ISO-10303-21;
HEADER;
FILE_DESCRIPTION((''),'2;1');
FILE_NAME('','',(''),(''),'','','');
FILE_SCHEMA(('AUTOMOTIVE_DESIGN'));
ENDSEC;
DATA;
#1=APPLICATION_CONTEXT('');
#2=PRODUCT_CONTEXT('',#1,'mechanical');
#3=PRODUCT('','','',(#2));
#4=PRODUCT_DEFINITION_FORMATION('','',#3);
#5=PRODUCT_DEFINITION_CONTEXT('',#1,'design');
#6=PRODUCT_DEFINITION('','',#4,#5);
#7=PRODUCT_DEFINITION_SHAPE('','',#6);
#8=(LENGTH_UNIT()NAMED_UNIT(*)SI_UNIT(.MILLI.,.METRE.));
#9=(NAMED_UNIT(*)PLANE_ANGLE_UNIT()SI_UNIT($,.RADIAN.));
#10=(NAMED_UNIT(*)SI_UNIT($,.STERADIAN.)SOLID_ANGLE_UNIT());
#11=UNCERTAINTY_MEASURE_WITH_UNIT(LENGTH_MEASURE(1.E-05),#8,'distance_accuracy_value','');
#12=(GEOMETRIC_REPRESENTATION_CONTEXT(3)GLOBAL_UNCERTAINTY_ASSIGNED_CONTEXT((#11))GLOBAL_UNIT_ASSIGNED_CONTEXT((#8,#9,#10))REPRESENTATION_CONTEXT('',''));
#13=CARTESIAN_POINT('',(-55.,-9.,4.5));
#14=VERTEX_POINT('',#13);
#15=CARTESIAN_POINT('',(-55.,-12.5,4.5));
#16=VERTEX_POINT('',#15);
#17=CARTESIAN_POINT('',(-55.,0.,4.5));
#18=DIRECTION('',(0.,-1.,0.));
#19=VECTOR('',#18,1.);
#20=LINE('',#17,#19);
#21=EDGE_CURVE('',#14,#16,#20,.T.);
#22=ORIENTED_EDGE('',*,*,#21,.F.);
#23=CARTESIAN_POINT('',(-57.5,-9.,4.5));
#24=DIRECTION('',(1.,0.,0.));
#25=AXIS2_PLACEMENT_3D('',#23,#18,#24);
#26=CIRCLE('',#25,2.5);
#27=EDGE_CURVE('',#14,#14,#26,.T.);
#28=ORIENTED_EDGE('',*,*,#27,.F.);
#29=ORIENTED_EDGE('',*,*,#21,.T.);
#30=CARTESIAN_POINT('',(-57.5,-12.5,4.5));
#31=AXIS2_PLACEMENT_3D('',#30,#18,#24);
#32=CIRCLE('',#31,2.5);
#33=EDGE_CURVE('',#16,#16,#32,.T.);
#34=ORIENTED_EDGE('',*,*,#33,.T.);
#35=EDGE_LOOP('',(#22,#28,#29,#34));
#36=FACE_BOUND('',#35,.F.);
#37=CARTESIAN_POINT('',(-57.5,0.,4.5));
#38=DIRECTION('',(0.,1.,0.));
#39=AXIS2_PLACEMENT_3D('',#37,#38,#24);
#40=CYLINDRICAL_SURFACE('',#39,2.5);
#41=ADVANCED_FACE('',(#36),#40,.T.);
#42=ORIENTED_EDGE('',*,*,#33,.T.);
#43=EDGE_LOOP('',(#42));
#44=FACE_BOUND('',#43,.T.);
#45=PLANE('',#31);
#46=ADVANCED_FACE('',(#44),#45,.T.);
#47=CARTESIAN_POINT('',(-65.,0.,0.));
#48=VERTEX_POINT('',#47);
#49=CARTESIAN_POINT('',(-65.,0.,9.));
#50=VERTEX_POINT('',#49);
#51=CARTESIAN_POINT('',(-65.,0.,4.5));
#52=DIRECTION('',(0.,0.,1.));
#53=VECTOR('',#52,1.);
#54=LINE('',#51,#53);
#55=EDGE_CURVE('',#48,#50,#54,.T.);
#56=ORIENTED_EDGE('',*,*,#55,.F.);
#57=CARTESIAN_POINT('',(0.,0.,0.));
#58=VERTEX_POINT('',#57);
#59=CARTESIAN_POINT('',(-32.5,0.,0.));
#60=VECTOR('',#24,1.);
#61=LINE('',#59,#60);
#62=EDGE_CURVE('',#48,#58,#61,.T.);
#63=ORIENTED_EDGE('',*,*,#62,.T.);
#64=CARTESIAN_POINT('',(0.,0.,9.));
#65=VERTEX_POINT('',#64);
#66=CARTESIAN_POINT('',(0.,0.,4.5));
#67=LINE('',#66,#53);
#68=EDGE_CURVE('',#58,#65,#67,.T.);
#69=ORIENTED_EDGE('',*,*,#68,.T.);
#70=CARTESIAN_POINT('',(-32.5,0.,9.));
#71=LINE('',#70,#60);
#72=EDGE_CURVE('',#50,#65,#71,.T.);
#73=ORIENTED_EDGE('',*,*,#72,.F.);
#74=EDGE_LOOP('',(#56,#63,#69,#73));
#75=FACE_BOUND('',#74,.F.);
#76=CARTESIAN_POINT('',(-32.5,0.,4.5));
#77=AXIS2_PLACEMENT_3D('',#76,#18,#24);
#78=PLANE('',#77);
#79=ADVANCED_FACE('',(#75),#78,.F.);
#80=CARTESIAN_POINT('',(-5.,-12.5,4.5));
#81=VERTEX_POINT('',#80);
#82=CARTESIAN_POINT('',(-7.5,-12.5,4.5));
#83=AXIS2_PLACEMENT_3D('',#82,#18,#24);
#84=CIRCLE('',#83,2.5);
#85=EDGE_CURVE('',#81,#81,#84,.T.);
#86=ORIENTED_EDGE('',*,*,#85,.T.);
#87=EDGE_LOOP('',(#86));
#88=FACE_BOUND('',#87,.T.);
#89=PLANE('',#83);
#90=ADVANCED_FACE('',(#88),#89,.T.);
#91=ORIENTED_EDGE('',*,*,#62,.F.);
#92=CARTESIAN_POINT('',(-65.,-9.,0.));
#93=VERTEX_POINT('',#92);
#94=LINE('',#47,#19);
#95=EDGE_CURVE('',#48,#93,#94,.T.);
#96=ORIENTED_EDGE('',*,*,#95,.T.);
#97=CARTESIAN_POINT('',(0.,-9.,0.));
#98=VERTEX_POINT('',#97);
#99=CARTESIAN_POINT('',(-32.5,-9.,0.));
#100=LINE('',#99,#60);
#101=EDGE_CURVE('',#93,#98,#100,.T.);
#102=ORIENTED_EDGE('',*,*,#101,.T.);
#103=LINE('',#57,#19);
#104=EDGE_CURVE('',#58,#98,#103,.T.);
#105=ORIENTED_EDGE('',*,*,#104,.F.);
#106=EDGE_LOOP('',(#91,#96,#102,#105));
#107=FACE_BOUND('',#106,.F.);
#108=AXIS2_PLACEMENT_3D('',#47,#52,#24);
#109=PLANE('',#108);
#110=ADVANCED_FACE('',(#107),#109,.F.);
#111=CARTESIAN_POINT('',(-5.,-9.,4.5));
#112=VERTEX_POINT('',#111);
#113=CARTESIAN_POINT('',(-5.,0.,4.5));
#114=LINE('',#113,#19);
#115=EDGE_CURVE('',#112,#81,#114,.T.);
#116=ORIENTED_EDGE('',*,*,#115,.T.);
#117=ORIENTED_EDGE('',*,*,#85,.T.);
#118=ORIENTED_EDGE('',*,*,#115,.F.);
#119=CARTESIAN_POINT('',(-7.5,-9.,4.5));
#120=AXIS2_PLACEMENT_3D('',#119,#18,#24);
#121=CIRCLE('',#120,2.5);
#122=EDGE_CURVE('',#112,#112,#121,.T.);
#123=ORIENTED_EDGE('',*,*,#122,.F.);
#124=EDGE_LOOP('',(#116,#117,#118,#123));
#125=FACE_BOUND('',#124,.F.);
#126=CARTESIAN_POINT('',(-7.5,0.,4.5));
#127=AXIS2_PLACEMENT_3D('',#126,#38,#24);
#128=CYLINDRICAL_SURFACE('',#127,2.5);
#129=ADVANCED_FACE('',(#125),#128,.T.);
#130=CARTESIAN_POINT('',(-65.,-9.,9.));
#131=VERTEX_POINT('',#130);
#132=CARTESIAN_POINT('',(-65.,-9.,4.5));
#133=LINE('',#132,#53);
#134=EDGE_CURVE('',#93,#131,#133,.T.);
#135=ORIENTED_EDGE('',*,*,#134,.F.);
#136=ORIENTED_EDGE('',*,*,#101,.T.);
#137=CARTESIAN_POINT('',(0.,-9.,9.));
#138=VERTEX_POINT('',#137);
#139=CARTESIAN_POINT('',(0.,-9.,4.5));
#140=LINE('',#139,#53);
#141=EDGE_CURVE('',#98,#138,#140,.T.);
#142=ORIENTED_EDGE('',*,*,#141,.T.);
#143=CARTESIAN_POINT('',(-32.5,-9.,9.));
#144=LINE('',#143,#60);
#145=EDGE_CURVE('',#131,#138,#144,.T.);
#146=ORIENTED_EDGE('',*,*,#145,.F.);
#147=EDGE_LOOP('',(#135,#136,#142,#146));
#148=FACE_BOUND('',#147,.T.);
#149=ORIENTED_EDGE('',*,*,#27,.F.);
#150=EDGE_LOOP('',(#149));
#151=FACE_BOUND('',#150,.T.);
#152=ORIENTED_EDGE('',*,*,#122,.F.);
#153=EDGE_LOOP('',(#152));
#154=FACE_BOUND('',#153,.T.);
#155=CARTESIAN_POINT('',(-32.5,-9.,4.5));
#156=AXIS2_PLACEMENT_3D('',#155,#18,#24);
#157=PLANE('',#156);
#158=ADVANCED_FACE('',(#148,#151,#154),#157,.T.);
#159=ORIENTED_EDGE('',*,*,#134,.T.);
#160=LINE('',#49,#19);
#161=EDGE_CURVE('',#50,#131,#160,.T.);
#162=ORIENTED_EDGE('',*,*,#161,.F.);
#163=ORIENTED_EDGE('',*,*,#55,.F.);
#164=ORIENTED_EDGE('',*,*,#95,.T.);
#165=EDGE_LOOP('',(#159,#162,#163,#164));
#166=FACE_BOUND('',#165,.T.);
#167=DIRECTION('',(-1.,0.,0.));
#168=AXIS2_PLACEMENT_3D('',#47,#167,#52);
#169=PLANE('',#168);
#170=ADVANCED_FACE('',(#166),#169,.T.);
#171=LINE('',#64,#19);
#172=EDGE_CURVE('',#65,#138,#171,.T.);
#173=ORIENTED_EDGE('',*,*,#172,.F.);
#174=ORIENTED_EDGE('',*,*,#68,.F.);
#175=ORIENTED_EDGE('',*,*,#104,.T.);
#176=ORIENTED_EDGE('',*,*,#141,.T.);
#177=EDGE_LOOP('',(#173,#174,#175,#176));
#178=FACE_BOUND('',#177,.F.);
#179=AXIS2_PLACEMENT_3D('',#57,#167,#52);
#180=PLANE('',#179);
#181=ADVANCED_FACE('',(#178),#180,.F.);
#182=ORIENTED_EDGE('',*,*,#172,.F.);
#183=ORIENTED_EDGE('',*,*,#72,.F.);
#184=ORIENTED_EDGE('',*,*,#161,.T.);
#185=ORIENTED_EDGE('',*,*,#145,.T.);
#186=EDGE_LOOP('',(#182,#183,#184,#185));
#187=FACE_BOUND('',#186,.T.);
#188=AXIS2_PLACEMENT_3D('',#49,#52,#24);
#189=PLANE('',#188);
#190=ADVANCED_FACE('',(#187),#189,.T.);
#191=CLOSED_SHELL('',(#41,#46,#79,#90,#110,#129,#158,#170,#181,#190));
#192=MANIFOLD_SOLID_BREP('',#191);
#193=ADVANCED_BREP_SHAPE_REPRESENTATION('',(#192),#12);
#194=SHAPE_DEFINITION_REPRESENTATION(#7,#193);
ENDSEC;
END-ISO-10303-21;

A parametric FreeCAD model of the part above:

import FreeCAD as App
import Part
import Sketcher
from FreeCAD import Vector
Q = App.Units.Quantity

doc = App.newDocument("Part")
body = doc.addObject("PartDesign::Body", "Body")

# Sketch on XZ plane
sketch1 = doc.addObject("Sketcher::SketchObject", "Sketch")
body.addObject(sketch1)
sketch1.AttachmentSupport = (doc.XZ_Plane, [""])
sketch1.MapMode = "FlatFace"
sketch1.addGeometry(Part.LineSegment(Vector(-65, 9, 0), Vector(-65, 0, 0)), False)
sketch1.addGeometry(Part.LineSegment(Vector(-65, 0, 0), Vector(0, 0, 0)), False)
sketch1.addGeometry(Part.LineSegment(Vector(0, 0, 0), Vector(0, 9, 0)), False)
sketch1.addGeometry(Part.LineSegment(Vector(0, 9, 0), Vector(-65, 9, 0)), False)
sketch1.addGeometry(Part.Circle(Vector(-57.5, 4.5, 0), Vector(0, 0, 1), 2.5), False)
sketch1.addGeometry(Part.Circle(Vector(-7.5, 4.5, 0), Vector(0, 0, 1), 2.5), False)
sketch1.addConstraint(Sketcher.Constraint("Coincident", 0, 2, 1, 1))
sketch1.addConstraint(Sketcher.Constraint("Coincident", 1, 2, 2, 1))
sketch1.addConstraint(Sketcher.Constraint("Coincident", 2, 2, 3, 1))
sketch1.addConstraint(Sketcher.Constraint("Coincident", 3, 2, 0, 1))
sketch1.addConstraint(Sketcher.Constraint("Vertical", 0))
sketch1.addConstraint(Sketcher.Constraint("Horizontal", 1))
sketch1.addConstraint(Sketcher.Constraint("Vertical", 2))
sketch1.addConstraint(Sketcher.Constraint("Horizontal", 3))
sketch1.addConstraint(Sketcher.Constraint("Coincident", 1, 2, -1, 1))
sketch1.addConstraint(Sketcher.Constraint("Equal", 4, 5))
sketch1.addConstraint(Sketcher.Constraint("Horizontal", 4, 3, 5, 3))
sketch1.addConstraint(Sketcher.Constraint("Diameter", 4, Q("5 mm")))
sketch1.addConstraint(Sketcher.Constraint("DistanceX", 1, 1, 1, 2, Q("65 mm")))
sketch1.addConstraint(Sketcher.Constraint("DistanceY", 0, 2, 0, 1, Q("9 mm")))
sketch1.addConstraint(Sketcher.Constraint("DistanceX", 4, 3, 5, 3, Q("50 mm")))
sketch1.addConstraint(Sketcher.Constraint("DistanceX", 4, 3, -1, 1, Q("57.5 mm")))
sketch1.addConstraint(Sketcher.Constraint("DistanceY", -1, 1, 4, 3, Q("4.5 mm")))
pad1 = doc.addObject("PartDesign::Pad", "Pad")
body.addObject(pad1)
pad1.Profile = sketch1
pad1.Length = 9

# Sketch on XZ plane
sketch2 = doc.addObject("Sketcher::SketchObject", "Sketch001")
body.addObject(sketch2)
sketch2.AttachmentSupport = (doc.XZ_Plane, [""])
sketch2.MapMode = "FlatFace"
sketch2.addGeometry(Part.Circle(Vector(-57.5, 4.5, 0), Vector(0, 0, 1), 2.5), False)
sketch2.addGeometry(Part.Circle(Vector(-7.5, 4.5, 0), Vector(0, 0, 1), 2.5), False)
sketch2.addConstraint(Sketcher.Constraint("Equal", 0, 1))
sketch2.addConstraint(Sketcher.Constraint("Horizontal", 0, 3, 1, 3))
sketch2.addConstraint(Sketcher.Constraint("Diameter", 0, Q("5 mm")))
sketch2.addConstraint(Sketcher.Constraint("DistanceX", 0, 3, 1, 3, Q("50 mm")))
sketch2.addConstraint(Sketcher.Constraint("DistanceX", 0, 3, -1, 1, Q("57.5 mm")))
sketch2.addConstraint(Sketcher.Constraint("DistanceY", -1, 1, 0, 3, Q("4.5 mm")))
pad2 = doc.addObject("PartDesign::Pad", "Pad001")
body.addObject(pad2)
pad2.Profile = sketch2
pad2.Length = 12.5

doc.recompute()
